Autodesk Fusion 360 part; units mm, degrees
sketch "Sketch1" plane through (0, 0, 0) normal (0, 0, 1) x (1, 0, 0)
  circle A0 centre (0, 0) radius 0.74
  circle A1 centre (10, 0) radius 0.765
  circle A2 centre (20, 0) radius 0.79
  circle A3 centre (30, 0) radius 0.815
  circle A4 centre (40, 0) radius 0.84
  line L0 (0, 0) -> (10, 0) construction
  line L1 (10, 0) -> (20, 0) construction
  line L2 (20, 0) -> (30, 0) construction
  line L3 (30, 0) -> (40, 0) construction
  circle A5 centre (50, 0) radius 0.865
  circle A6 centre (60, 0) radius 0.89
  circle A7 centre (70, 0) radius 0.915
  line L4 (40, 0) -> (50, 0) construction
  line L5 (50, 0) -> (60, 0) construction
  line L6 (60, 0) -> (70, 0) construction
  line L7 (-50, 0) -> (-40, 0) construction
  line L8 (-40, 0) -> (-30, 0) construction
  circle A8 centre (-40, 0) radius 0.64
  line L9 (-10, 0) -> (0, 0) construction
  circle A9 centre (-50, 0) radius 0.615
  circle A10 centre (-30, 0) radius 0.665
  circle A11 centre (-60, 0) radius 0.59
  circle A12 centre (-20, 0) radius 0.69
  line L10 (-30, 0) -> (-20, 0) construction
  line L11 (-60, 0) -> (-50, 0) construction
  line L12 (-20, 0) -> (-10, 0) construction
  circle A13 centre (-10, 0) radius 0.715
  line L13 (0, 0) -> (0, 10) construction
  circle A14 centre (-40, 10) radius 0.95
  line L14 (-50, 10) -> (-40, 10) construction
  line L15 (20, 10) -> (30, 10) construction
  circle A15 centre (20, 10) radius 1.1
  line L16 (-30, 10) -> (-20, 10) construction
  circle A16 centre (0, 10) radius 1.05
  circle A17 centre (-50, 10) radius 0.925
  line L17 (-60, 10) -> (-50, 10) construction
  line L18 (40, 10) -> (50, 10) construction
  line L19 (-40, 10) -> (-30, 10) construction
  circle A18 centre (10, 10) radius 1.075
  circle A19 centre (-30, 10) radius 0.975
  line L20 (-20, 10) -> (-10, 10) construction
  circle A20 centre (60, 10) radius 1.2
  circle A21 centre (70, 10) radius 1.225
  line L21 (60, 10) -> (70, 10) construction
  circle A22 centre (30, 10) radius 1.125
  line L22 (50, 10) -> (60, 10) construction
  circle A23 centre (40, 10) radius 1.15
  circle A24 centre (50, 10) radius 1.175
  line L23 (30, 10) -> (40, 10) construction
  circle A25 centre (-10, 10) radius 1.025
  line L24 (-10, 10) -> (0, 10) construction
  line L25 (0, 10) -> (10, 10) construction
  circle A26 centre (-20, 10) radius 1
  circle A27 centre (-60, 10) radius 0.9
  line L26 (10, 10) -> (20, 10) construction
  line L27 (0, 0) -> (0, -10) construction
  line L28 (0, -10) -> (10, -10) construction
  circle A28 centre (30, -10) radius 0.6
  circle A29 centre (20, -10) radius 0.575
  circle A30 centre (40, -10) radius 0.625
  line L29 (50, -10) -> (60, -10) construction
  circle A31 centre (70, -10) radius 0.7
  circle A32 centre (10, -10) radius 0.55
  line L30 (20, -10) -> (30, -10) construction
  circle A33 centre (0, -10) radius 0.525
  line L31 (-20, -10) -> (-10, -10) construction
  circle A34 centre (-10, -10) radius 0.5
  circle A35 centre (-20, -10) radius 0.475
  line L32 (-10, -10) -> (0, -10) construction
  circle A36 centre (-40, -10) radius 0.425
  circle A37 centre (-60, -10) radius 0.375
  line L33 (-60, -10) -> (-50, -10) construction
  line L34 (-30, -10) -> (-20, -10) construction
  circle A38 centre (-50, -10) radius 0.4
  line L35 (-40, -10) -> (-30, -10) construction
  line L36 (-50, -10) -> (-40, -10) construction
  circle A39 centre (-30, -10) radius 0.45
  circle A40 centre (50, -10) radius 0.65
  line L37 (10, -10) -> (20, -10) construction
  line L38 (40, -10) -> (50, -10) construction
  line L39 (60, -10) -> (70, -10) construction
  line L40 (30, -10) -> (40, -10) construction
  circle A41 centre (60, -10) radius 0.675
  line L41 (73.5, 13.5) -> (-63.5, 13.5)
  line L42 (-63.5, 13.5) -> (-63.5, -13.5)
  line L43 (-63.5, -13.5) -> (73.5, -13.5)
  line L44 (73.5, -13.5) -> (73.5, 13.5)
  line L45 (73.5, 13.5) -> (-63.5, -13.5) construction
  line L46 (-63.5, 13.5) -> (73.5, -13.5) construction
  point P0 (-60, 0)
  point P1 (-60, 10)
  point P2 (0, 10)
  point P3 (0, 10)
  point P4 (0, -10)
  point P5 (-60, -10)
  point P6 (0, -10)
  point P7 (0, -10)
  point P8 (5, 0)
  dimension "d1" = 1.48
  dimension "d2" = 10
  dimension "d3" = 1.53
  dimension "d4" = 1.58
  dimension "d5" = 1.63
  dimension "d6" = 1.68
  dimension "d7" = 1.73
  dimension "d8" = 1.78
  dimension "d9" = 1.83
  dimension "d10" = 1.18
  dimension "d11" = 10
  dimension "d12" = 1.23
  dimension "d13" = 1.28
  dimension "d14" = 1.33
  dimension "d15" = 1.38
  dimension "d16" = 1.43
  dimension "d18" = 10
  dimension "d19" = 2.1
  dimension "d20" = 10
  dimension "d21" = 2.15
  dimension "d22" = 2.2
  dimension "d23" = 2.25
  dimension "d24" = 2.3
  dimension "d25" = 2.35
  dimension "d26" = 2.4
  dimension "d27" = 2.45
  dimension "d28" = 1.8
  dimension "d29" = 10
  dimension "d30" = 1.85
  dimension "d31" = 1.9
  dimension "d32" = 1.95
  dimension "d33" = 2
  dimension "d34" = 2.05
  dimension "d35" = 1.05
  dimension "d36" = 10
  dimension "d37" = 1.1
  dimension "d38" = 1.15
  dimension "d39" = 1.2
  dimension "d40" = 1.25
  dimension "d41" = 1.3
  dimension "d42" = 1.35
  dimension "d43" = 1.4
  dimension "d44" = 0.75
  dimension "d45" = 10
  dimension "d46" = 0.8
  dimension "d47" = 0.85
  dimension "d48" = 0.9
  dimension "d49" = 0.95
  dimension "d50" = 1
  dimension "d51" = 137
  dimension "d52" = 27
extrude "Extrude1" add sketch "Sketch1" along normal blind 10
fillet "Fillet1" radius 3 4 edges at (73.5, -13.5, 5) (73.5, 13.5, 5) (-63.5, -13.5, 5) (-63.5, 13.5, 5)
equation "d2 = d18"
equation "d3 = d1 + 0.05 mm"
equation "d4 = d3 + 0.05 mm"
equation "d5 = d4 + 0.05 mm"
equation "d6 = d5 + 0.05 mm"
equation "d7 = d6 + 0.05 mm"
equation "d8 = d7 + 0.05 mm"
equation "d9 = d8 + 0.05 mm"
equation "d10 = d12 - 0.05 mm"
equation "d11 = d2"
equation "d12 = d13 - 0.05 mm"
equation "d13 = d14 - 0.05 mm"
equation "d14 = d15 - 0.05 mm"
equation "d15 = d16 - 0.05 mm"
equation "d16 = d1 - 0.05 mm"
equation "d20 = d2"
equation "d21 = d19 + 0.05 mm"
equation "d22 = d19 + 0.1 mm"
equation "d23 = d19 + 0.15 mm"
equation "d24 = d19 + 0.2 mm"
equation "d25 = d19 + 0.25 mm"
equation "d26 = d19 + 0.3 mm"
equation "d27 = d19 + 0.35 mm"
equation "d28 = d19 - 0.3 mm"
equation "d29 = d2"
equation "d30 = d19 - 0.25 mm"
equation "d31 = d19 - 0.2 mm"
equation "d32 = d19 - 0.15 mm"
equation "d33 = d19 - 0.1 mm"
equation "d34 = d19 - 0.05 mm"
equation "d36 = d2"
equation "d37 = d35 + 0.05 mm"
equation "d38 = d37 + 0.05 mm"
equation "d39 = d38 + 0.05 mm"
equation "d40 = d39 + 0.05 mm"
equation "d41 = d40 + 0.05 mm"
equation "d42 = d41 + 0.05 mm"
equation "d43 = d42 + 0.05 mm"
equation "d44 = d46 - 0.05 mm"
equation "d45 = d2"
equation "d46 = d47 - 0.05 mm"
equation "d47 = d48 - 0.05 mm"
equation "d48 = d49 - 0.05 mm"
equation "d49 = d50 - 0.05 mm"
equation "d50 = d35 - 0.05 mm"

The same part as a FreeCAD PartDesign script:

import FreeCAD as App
import Part
import Sketcher
from FreeCAD import Vector
Q = App.Units.Quantity


def edges_at(feature, points):
    """Names of the edges that pass closest to the given points."""
    edges = feature.Shape.Edges
    near = lambda p: min(range(len(edges)), key=lambda i: edges[i].distToShape(Part.Vertex(*p))[0])
    return sorted({f"Edge{near(p) + 1}" for p in points})

doc = App.newDocument("Part")
body = doc.addObject("PartDesign::Body", "Body")

sketch1 = body.newObject("Sketcher::SketchObject", "Sketch")
sketch1.AttachmentSupport = (doc.getObject("XY_Plane"), [""])
sketch1.MapMode = "FlatFace"
sketch1.addGeometry(Part.LineSegment(Vector(73.5, -13.5, 0), Vector(73.5, 13.5, 0)), False)
sketch1.addGeometry(Part.LineSegment(Vector(73.5, 13.5, 0), Vector(-63.5, 13.5, 0)), False)
sketch1.addGeometry(Part.LineSegment(Vector(-63.5, 13.5, 0), Vector(-63.5, -13.5, 0)), False)
sketch1.addGeometry(Part.LineSegment(Vector(-63.5, -13.5, 0), Vector(73.5, -13.5, 0)), False)
sketch1.addGeometry(Part.Circle(Vector(-60, -10, 0), Vector(0, 0, 1), 0.375), False)
sketch1.addGeometry(Part.Circle(Vector(-50, -10, 0), Vector(0, 0, 1), 0.4), False)
sketch1.addGeometry(Part.Circle(Vector(-40, -10, 0), Vector(0, 0, 1), 0.425), False)
sketch1.addGeometry(Part.Circle(Vector(-30, -10, 0), Vector(0, 0, 1), 0.45), False)
sketch1.addGeometry(Part.Circle(Vector(-20, -10, 0), Vector(0, 0, 1), 0.475), False)
sketch1.addGeometry(Part.Circle(Vector(-10, -10, 0), Vector(0, 0, 1), 0.5), False)
sketch1.addGeometry(Part.Circle(Vector(0, -10, 0), Vector(0, 0, 1), 0.525), False)
sketch1.addGeometry(Part.Circle(Vector(10, -10, 0), Vector(0, 0, 1), 0.55), False)
sketch1.addGeometry(Part.Circle(Vector(20, -10, 0), Vector(0, 0, 1), 0.575), False)
sketch1.addGeometry(Part.Circle(Vector(30, -10, 0), Vector(0, 0, 1), 0.6), False)
sketch1.addGeometry(Part.Circle(Vector(40, -10, 0), Vector(0, 0, 1), 0.625), False)
sketch1.addGeometry(Part.Circle(Vector(50, -10, 0), Vector(0, 0, 1), 0.65), False)
sketch1.addGeometry(Part.Circle(Vector(60, -10, 0), Vector(0, 0, 1), 0.675), False)
sketch1.addGeometry(Part.Circle(Vector(70, -10, 0), Vector(0, 0, 1), 0.7), False)
sketch1.addGeometry(Part.Circle(Vector(-60, 0, 0), Vector(0, 0, 1), 0.59), False)
sketch1.addGeometry(Part.Circle(Vector(-50, 0, 0), Vector(0, 0, 1), 0.615), False)
sketch1.addGeometry(Part.Circle(Vector(-40, 0, 0), Vector(0, 0, 1), 0.64), False)
sketch1.addGeometry(Part.Circle(Vector(-30, 0, 0), Vector(0, 0, 1), 0.665), False)
sketch1.addGeometry(Part.Circle(Vector(-20, 0, 0), Vector(0, 0, 1), 0.69), False)
sketch1.addGeometry(Part.Circle(Vector(-10, 0, 0), Vector(0, 0, 1), 0.715), False)
sketch1.addGeometry(Part.Circle(Vector(0, 0, 0), Vector(0, 0, 1), 0.74), False)
sketch1.addGeometry(Part.Circle(Vector(-60, 10, 0), Vector(0, 0, 1), 0.9), False)
sketch1.addGeometry(Part.Circle(Vector(-50, 10, 0), Vector(0, 0, 1), 0.925), False)
sketch1.addGeometry(Part.Circle(Vector(-40, 10, 0), Vector(0, 0, 1), 0.95), False)
sketch1.addGeometry(Part.Circle(Vector(-30, 10, 0), Vector(0, 0, 1), 0.975), False)
sketch1.addGeometry(Part.Circle(Vector(-20, 10, 0), Vector(0, 0, 1), 1), False)
sketch1.addGeometry(Part.Circle(Vector(-10, 10, 0), Vector(0, 0, 1), 1.025), False)
sketch1.addGeometry(Part.Circle(Vector(0, 10, 0), Vector(0, 0, 1), 1.05), False)
sketch1.addGeometry(Part.Circle(Vector(10, 0, 0), Vector(0, 0, 1), 0.765), False)
sketch1.addGeometry(Part.Circle(Vector(20, 0, 0), Vector(0, 0, 1), 0.79), False)
sketch1.addGeometry(Part.Circle(Vector(30, 0, 0), Vector(0, 0, 1), 0.815), False)
sketch1.addGeometry(Part.Circle(Vector(40, 0, 0), Vector(0, 0, 1), 0.84), False)
sketch1.addGeometry(Part.Circle(Vector(50, 0, 0), Vector(0, 0, 1), 0.865), False)
sketch1.addGeometry(Part.Circle(Vector(60, 0, 0), Vector(0, 0, 1), 0.89), False)
sketch1.addGeometry(Part.Circle(Vector(70, 0, 0), Vector(0, 0, 1), 0.915), False)
sketch1.addGeometry(Part.Circle(Vector(10, 10, 0), Vector(0, 0, 1), 1.075), False)
sketch1.addGeometry(Part.Circle(Vector(20, 10, 0), Vector(0, 0, 1), 1.1), False)
sketch1.addGeometry(Part.Circle(Vector(30, 10, 0), Vector(0, 0, 1), 1.125), False)
sketch1.addGeometry(Part.Circle(Vector(40, 10, 0), Vector(0, 0, 1), 1.15), False)
sketch1.addGeometry(Part.Circle(Vector(50, 10, 0), Vector(0, 0, 1), 1.175), False)
sketch1.addGeometry(Part.Circle(Vector(60, 10, 0), Vector(0, 0, 1), 1.2), False)
sketch1.addGeometry(Part.Circle(Vector(70, 10, 0), Vector(0, 0, 1), 1.225), False)
sketch1.addConstraint(Sketcher.Constraint("Coincident", 0, 2, 1, 1))
sketch1.addConstraint(Sketcher.Constraint("Coincident", 1, 2, 2, 1))
sketch1.addConstraint(Sketcher.Constraint("Coincident", 2, 2, 3, 1))
sketch1.addConstraint(Sketcher.Constraint("Coincident", 3, 2, 0, 1))
sketch1.addConstraint(Sketcher.Constraint("Vertical", 0))
sketch1.addConstraint(Sketcher.Constraint("Horizontal", 1))
sketch1.addConstraint(Sketcher.Constraint("Vertical", 2))
sketch1.addConstraint(Sketcher.Constraint("Horizontal", 3))
sketch1.addConstraint(Sketcher.Constraint("Coincident", 24, 3, -1, 1))
sketch1.addConstraint(Sketcher.Constraint("Symmetric", 16, 3, 25, 3, -1, 1))
sketch1.addConstraint(Sketcher.Constraint("Symmetric", 15, 3, 26, 3, -1, 1))
sketch1.addConstraint(Sketcher.Constraint("Symmetric", 14, 3, 27, 3, -1, 1))
sketch1.addConstraint(Sketcher.Constraint("Symmetric", 13, 3, 28, 3, -1, 1))
sketch1.addConstraint(Sketcher.Constraint("Symmetric", 12, 3, 29, 3, -1, 1))
sketch1.addConstraint(Sketcher.Constraint("Symmetric", 11, 3, 30, 3, -1, 1))
sketch1.addConstraint(Sketcher.Constraint("Symmetric", 10, 3, 31, 3, -1, 1))
sketch1.addConstraint(Sketcher.Constraint("Symmetric", 23, 3, 32, 3, -1, 1))
sketch1.addConstraint(Sketcher.Constraint("Symmetric", 22, 3, 33, 3, -1, 1))
sketch1.addConstraint(Sketcher.Constraint("Symmetric", 21, 3, 34, 3, -1, 1))
sketch1.addConstraint(Sketcher.Constraint("Symmetric", 20, 3, 35, 3, -1, 1))
sketch1.addConstraint(Sketcher.Constraint("Symmetric", 19, 3, 36, 3, -1, 1))
sketch1.addConstraint(Sketcher.Constraint("Symmetric", 18, 3, 37, 3, -1, 1))
sketch1.addConstraint(Sketcher.Constraint("Symmetric", 9, 3, 39, 3, -1, 1))
sketch1.addConstraint(Sketcher.Constraint("Symmetric", 8, 3, 40, 3, -1, 1))
sketch1.addConstraint(Sketcher.Constraint("Symmetric", 7, 3, 41, 3, -1, 1))
sketch1.addConstraint(Sketcher.Constraint("Symmetric", 6, 3, 42, 3, -1, 1))
sketch1.addConstraint(Sketcher.Constraint("Symmetric", 5, 3, 43, 3, -1, 1))
sketch1.addConstraint(Sketcher.Constraint("Symmetric", 4, 3, 44, 3, -1, 1))
sketch1.addConstraint(Sketcher.Constraint("Symmetric", 9, 3, 11, 3, -2))
sketch1.addConstraint(Sketcher.Constraint("Symmetric", 8, 3, 12, 3, -2))
sketch1.addConstraint(Sketcher.Constraint("Symmetric", 7, 3, 13, 3, -2))
sketch1.addConstraint(Sketcher.Constraint("Symmetric", 6, 3, 14, 3, -2))
sketch1.addConstraint(Sketcher.Constraint("Symmetric", 5, 3, 15, 3, -2))
sketch1.addConstraint(Sketcher.Constraint("Symmetric", 4, 3, 16, 3, -2))
sketch1.addConstraint(Sketcher.Constraint("Symmetric", 17, 3, 45, 3, -1))
sketch1.addConstraint(Sketcher.Constraint("PointOnObject", 10, 3, -2))
sketch1.addConstraint(Sketcher.Constraint("PointOnObject", 18, 3, -1))
sketch1.addConstraint(Sketcher.Constraint("PointOnObject", 19, 3, -1))
sketch1.addConstraint(Sketcher.Constraint("PointOnObject", 20, 3, -1))
sketch1.addConstraint(Sketcher.Constraint("PointOnObject", 21, 3, -1))
sketch1.addConstraint(Sketcher.Constraint("PointOnObject", 22, 3, -1))
sketch1.addConstraint(Sketcher.Constraint("PointOnObject", 23, 3, -1))
sketch1.addConstraint(Sketcher.Constraint("PointOnObject", 38, 3, -1))
sketch1.addConstraint(Sketcher.Constraint("Horizontal", 4, 3, 5, 3))
sketch1.addConstraint(Sketcher.Constraint("Horizontal", 5, 3, 6, 3))
sketch1.addConstraint(Sketcher.Constraint("Horizontal", 6, 3, 7, 3))
sketch1.addConstraint(Sketcher.Constraint("Horizontal", 7, 3, 8, 3))
sketch1.addConstraint(Sketcher.Constraint("Horizontal", 8, 3, 9, 3))
sketch1.addConstraint(Sketcher.Constraint("Horizontal", 9, 3, 10, 3))
sketch1.addConstraint(Sketcher.Constraint("Horizontal", 16, 3, 17, 3))
sketch1.addConstraint(Sketcher.Constraint("Vertical", 4, 3, 18, 3))
sketch1.addConstraint(Sketcher.Constraint("Vertical", 5, 3, 19, 3))
sketch1.addConstraint(Sketcher.Constraint("Vertical", 6, 3, 20, 3))
sketch1.addConstraint(Sketcher.Constraint("Vertical", 7, 3, 21, 3))
sketch1.addConstraint(Sketcher.Constraint("Vertical", 8, 3, 22, 3))
sketch1.addConstraint(Sketcher.Constraint("Vertical", 9, 3, 23, 3))
sketch1.addConstraint(Sketcher.Constraint("Vertical", 17, 3, 38, 3))
sketch1.addConstraint(Sketcher.Constraint("Diameter", 9, Q("1 mm")))
sketch1.addConstraint(Sketcher.Constraint("Diameter", 29, Q("2 mm")))
sketch1.addConstraint(Sketcher.Constraint("Diameter", 5, Q("0.8 mm")))
sketch1.addConstraint(Sketcher.Constraint("Diameter", 7, Q("0.9 mm")))
sketch1.addConstraint(Sketcher.Constraint("Diameter", 11, Q("1.1 mm")))
sketch1.addConstraint(Sketcher.Constraint("Diameter", 13, Q("1.2 mm")))
sketch1.addConstraint(Sketcher.Constraint("Diameter", 15, Q("1.3 mm")))
sketch1.addConstraint(Sketcher.Constraint("Diameter", 17, Q("1.4 mm")))
sketch1.addConstraint(Sketcher.Constraint("Diameter", 25, Q("1.8 mm")))
sketch1.addConstraint(Sketcher.Constraint("Diameter", 27, Q("1.9 mm")))
sketch1.addConstraint(Sketcher.Constraint("Diameter", 31, Q("2.1 mm")))
sketch1.addConstraint(Sketcher.Constraint("Diameter", 40, Q("2.2 mm")))
sketch1.addConstraint(Sketcher.Constraint("Diameter", 42, Q("2.3 mm")))
sketch1.addConstraint(Sketcher.Constraint("Diameter", 44, Q("2.4 mm")))
sketch1.addConstraint(Sketcher.Constraint("Diameter", 4, Q("0.75 mm")))
sketch1.addConstraint(Sketcher.Constraint("Diameter", 6, Q("0.85 mm")))
sketch1.addConstraint(Sketcher.Constraint("Diameter", 8, Q("0.95 mm")))
sketch1.addConstraint(Sketcher.Constraint("Diameter", 10, Q("1.05 mm")))
sketch1.addConstraint(Sketcher.Constraint("Diameter", 12, Q("1.15 mm")))
sketch1.addConstraint(Sketcher.Constraint("Diameter", 14, Q("1.25 mm")))
sketch1.addConstraint(Sketcher.Constraint("Diameter", 16, Q("1.35 mm")))
sketch1.addConstraint(Sketcher.Constraint("Diameter", 18, Q("1.18 mm")))
sketch1.addConstraint(Sketcher.Constraint("Diameter", 19, Q("1.23 mm")))
sketch1.addConstraint(Sketcher.Constraint("Diameter", 20, Q("1.28 mm")))
sketch1.addConstraint(Sketcher.Constraint("Diameter", 21, Q("1.33 mm")))
sketch1.addConstraint(Sketcher.Constraint("Diameter", 22, Q("1.38 mm")))
sketch1.addConstraint(Sketcher.Constraint("Diameter", 23, Q("1.43 mm")))
sketch1.addConstraint(Sketcher.Constraint("Diameter", 24, Q("1.48 mm")))
sketch1.addConstraint(Sketcher.Constraint("Diameter", 26, Q("1.85 mm")))
sketch1.addConstraint(Sketcher.Constraint("Diameter", 28, Q("1.95 mm")))
sketch1.addConstraint(Sketcher.Constraint("Diameter", 30, Q("2.05 mm")))
sketch1.addConstraint(Sketcher.Constraint("Diameter", 32, Q("1.53 mm")))
sketch1.addConstraint(Sketcher.Constraint("Diameter", 33, Q("1.58 mm")))
sketch1.addConstraint(Sketcher.Constraint("Diameter", 34, Q("1.63 mm")))
sketch1.addConstraint(Sketcher.Constraint("Diameter", 35, Q("1.68 mm")))
sketch1.addConstraint(Sketcher.Constraint("Diameter", 36, Q("1.73 mm")))
sketch1.addConstraint(Sketcher.Constraint("Diameter", 37, Q("1.78 mm")))
sketch1.addConstraint(Sketcher.Constraint("Diameter", 38, Q("1.83 mm")))
sketch1.addConstraint(Sketcher.Constraint("Diameter", 39, Q("2.15 mm")))
sketch1.addConstraint(Sketcher.Constraint("Diameter", 41, Q("2.25 mm")))
sketch1.addConstraint(Sketcher.Constraint("Diameter", 43, Q("2.35 mm")))
sketch1.addConstraint(Sketcher.Constraint("Diameter", 45, Q("2.45 mm")))
sketch1.addConstraint(Sketcher.Constraint("DistanceX", 1, 2, 1, 1, Q("137 mm")))
sketch1.addConstraint(Sketcher.Constraint("DistanceY", 0, 1, 0, 2, Q("27 mm")))
sketch1.addConstraint(Sketcher.Constraint("DistanceY", 4, 3, -1, 1, Q("10 mm")))
sketch1.addConstraint(Sketcher.Constraint("DistanceX", 9, 3, -1, 1, Q("10 mm")))
sketch1.addConstraint(Sketcher.Constraint("DistanceX", 4, 3, 5, 3, Q("10 mm")))
sketch1.addConstraint(Sketcher.Constraint("DistanceX", 5, 3, 6, 3, Q("10 mm")))
sketch1.addConstraint(Sketcher.Constraint("DistanceX", 6, 3, 7, 3, Q("10 mm")))
sketch1.addConstraint(Sketcher.Constraint("DistanceX", 7, 3, 8, 3, Q("10 mm")))
sketch1.addConstraint(Sketcher.Constraint("DistanceX", 8, 3, 9, 3, Q("10 mm")))
sketch1.addConstraint(Sketcher.Constraint("DistanceX", 16, 3, 17, 3, Q("10 mm")))
sketch1.addConstraint(Sketcher.Constraint("DistanceX", -1, 1, 0, 2, Q("73.5 mm")))
sketch1.addConstraint(Sketcher.Constraint("DistanceY", -1, 1, 0, 2, Q("13.5 mm")))
pad1 = body.newObject("PartDesign::Pad", "Pad")
pad1.Profile = sketch1
pad1.Length = 10
doc.recompute()

fillet = body.newObject("PartDesign::Fillet", "Fillet")
fillet.Base = (pad1, edges_at(pad1, [
    (73.5, -13.5, 5),
    (73.5, 13.5, 5),
    (-63.5, -13.5, 5),
    (-63.5, 13.5, 5),
]))
fillet.Radius = 3

doc.recompute()
